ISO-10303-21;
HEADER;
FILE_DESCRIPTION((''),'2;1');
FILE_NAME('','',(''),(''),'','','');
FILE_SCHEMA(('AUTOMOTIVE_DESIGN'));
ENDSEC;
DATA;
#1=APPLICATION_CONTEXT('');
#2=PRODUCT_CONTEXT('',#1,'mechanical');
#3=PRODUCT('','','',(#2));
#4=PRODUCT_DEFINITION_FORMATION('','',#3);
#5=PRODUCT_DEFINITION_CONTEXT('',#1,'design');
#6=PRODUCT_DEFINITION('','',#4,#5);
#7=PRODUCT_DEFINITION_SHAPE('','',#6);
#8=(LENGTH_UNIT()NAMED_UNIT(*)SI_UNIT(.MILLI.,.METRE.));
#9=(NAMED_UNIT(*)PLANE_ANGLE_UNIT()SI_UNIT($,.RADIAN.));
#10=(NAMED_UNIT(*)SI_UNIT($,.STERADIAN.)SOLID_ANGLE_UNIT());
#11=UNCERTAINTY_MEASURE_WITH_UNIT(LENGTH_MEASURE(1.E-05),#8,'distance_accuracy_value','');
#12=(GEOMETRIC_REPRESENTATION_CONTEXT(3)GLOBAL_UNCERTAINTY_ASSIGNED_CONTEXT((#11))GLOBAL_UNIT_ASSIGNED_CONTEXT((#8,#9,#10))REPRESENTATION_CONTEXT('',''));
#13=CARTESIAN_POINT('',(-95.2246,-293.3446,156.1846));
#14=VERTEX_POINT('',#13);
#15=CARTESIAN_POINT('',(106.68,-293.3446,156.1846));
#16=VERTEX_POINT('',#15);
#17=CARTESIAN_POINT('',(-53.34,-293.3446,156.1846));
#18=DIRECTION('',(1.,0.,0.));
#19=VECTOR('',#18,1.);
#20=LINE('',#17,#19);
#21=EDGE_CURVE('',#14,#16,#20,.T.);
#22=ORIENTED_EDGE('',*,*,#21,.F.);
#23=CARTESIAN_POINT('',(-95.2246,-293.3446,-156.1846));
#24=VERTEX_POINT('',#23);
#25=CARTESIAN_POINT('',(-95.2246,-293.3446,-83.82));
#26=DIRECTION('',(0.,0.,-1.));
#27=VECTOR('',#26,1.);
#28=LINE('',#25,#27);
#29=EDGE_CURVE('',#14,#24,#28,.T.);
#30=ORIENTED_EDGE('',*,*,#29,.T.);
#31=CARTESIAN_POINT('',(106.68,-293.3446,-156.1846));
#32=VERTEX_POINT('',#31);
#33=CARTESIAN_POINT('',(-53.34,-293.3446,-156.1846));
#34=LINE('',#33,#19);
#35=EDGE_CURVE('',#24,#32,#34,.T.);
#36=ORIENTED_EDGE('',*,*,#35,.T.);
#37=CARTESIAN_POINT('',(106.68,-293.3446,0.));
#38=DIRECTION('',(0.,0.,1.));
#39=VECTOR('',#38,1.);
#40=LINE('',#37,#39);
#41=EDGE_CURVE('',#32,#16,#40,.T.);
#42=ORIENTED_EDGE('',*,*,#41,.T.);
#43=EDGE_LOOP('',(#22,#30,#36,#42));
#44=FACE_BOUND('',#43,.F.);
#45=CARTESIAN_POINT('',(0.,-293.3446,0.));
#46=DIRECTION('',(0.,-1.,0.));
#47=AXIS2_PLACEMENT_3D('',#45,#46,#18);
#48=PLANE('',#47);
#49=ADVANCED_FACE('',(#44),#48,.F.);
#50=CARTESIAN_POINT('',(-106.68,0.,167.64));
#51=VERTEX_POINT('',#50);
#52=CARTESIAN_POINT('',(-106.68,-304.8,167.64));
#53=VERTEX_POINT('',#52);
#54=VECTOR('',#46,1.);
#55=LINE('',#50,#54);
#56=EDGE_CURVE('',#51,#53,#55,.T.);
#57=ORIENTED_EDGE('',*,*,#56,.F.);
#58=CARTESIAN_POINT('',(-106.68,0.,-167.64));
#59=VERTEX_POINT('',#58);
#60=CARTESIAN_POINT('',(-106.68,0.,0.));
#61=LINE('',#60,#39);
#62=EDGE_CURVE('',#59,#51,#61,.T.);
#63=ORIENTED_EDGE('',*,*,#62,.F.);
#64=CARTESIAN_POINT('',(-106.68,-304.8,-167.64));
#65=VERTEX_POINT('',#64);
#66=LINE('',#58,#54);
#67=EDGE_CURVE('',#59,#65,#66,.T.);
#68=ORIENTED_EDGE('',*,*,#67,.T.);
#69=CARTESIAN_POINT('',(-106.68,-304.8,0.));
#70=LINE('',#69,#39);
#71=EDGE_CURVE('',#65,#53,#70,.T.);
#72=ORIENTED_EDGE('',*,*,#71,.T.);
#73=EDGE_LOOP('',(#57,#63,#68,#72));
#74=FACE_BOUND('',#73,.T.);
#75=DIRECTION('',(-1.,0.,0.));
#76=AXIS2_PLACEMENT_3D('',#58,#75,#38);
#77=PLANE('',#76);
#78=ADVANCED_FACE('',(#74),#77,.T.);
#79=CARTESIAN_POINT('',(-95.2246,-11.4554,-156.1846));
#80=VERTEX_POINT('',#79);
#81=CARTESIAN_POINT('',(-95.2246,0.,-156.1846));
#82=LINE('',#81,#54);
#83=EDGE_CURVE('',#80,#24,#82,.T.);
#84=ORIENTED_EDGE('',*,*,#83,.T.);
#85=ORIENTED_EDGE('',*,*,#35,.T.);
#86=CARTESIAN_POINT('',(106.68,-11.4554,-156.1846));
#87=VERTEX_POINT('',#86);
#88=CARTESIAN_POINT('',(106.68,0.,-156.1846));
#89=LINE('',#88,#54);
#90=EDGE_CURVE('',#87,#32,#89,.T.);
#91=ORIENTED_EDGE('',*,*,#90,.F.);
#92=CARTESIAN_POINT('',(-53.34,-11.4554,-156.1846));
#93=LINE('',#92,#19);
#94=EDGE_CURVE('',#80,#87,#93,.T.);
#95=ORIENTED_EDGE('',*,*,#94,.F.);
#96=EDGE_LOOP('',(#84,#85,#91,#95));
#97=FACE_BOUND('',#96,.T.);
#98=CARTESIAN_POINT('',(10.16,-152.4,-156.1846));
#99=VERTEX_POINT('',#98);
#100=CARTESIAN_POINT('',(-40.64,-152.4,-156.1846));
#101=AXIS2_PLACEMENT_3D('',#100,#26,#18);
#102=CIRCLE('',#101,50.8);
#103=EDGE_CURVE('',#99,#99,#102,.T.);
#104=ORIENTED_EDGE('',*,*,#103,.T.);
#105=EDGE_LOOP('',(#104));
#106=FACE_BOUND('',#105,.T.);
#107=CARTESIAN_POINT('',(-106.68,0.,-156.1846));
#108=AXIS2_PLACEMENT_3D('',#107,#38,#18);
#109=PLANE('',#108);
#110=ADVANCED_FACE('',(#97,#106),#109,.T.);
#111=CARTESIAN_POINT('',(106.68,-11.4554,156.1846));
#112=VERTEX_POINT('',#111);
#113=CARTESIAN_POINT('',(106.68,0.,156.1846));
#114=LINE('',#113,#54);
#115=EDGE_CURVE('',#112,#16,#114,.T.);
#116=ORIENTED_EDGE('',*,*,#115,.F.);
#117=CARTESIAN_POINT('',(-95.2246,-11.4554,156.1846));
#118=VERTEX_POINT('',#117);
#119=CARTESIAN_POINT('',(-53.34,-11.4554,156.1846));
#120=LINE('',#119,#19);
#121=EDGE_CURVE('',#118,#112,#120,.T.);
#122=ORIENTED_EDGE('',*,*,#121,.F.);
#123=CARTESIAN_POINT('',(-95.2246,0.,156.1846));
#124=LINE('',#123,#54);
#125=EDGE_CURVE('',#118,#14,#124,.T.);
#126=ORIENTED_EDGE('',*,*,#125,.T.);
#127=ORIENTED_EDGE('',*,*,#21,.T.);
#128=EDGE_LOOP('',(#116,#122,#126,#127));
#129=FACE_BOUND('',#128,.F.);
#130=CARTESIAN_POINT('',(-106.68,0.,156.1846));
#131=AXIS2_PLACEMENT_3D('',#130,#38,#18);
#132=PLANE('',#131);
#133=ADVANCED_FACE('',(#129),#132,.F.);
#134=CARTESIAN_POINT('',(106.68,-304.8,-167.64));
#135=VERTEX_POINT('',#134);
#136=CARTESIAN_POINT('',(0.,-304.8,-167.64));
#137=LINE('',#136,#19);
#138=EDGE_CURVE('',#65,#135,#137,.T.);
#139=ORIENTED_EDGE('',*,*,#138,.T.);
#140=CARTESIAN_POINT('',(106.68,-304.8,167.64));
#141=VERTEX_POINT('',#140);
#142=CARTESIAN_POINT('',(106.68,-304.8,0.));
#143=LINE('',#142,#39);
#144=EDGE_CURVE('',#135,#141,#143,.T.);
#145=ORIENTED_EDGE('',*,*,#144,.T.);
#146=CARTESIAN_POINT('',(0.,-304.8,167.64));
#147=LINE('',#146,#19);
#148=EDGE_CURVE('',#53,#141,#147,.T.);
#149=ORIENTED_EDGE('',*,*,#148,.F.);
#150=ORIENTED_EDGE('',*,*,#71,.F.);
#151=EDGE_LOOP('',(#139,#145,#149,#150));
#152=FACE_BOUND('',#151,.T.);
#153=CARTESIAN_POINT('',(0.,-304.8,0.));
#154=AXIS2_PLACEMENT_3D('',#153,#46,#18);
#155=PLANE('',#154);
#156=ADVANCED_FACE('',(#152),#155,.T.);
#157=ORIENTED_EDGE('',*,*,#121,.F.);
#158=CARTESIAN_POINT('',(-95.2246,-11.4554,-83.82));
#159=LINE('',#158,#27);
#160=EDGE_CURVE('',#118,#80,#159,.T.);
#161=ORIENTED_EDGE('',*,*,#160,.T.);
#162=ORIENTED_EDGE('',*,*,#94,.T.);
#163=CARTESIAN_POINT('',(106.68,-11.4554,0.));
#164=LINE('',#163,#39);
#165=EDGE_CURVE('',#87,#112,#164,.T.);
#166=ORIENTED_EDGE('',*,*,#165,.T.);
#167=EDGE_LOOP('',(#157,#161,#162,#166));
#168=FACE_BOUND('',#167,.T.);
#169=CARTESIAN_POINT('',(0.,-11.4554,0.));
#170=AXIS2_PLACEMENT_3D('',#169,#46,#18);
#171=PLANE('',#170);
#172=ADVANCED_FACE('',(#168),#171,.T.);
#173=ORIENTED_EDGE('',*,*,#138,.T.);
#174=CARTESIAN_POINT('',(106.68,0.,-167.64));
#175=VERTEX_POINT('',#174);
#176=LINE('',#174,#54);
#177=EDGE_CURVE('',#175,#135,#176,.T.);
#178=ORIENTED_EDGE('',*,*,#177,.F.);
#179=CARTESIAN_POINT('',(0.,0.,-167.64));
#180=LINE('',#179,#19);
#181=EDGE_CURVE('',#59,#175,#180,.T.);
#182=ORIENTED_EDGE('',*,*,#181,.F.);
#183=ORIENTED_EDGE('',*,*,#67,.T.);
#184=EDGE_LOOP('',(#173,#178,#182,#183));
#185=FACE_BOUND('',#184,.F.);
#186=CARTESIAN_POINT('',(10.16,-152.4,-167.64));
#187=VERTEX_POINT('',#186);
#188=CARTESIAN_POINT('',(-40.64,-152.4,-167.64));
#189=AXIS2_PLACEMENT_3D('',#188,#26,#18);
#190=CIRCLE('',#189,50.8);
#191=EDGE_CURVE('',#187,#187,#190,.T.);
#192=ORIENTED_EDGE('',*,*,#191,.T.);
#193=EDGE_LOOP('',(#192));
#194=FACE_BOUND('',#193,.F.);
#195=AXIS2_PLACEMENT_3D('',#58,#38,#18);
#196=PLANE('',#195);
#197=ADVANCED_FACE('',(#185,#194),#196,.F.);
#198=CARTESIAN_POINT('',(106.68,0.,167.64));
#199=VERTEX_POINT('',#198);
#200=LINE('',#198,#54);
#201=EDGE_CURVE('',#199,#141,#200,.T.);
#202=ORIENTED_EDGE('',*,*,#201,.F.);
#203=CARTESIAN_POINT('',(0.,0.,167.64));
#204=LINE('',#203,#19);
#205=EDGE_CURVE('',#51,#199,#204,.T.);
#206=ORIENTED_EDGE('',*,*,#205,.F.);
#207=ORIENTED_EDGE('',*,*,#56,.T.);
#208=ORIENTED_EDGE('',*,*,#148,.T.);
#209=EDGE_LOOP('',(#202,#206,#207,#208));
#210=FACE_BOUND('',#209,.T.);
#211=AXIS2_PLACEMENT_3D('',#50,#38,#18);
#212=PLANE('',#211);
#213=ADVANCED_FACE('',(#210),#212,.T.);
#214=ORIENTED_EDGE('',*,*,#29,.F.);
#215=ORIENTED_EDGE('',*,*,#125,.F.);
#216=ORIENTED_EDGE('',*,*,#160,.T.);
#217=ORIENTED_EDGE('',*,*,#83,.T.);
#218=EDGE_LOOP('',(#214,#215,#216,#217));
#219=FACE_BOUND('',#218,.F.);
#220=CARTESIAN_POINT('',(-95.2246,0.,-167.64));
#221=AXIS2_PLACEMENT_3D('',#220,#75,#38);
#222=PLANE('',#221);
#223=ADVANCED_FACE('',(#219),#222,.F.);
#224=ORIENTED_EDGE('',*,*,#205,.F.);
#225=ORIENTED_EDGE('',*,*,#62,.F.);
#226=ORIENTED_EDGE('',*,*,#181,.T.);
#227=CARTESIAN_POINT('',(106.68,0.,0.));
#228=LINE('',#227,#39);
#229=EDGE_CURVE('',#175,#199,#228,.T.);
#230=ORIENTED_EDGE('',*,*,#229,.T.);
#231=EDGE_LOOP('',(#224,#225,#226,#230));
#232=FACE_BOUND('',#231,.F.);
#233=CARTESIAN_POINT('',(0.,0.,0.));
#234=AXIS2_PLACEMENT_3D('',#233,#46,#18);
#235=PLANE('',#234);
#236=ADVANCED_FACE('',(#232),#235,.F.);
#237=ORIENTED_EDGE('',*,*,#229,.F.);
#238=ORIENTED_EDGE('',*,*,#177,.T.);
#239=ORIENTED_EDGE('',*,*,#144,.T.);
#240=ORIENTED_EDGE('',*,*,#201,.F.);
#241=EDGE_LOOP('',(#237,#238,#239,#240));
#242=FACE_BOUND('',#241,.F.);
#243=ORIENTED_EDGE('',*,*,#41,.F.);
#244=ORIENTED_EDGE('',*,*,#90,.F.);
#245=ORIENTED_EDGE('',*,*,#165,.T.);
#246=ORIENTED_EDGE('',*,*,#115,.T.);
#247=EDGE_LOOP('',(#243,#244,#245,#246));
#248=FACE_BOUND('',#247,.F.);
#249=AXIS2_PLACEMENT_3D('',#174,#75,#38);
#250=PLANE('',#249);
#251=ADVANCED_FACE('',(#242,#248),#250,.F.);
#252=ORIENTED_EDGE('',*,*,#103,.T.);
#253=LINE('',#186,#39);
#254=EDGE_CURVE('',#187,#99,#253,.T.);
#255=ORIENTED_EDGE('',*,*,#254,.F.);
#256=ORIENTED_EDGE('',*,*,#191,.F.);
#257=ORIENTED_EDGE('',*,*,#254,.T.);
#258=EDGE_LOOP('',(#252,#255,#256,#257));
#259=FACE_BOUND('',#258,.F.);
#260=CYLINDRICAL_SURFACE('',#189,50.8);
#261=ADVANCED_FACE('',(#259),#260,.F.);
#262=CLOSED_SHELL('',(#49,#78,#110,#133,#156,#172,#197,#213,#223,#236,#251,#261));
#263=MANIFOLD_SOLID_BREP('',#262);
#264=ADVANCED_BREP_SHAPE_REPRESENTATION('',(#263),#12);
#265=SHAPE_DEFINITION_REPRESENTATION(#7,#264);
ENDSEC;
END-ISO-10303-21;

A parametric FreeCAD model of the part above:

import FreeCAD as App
import Part
import Sketcher

V = App.Vector
Q = App.Units.Quantity


def faces_at(feature, points):
    """Names of the faces that lie closest to the given points."""
    faces = feature.Shape.Faces
    near = lambda p: min(range(len(faces)), key=lambda i: faces[i].distToShape(Part.Vertex(*p))[0])
    return sorted({f"Face{near(p) + 1}" for p in points})

doc = App.newDocument("Part")
params = doc.addObject("Spreadsheet::Sheet", "Params")
for row, (alias, value) in enumerate([
    ("sketch1_width", "8.4 in"),
    ("sketch1_height", "13.2 in"),
    ("pad1_length", "12 in"),
    ("thickness_wall", "0.451 in"),
    ("sketch2_diameter", "4 in"),
    ("pocket1_length", "0.451 in"),
], start=1):
    params.set(f"A{row}", alias)
    params.set(f"B{row}", "=" + value)
    params.setAlias(f"B{row}", alias)

body = doc.addObject("PartDesign::Body", "Body")

# Sketch on XZ plane
sketch1 = body.newObject("Sketcher::SketchObject", "Sketch")
sketch1.AttachmentSupport = (doc.getObject("XZ_Plane"), [""])
sketch1.MapMode = "FlatFace"
sketch1.addGeometry(Part.LineSegment(V(-107, 168, 0), V(-107, -168, 0)), False)
sketch1.addGeometry(Part.LineSegment(V(-107, -168, 0), V(107, -168, 0)), False)
sketch1.addGeometry(Part.LineSegment(V(107, -168, 0), V(107, 168, 0)), False)
sketch1.addGeometry(Part.LineSegment(V(107, 168, 0), V(-107, 168, 0)), False)
sketch1.addConstraint(Sketcher.Constraint("Coincident", 0, 2, 1, 1))
sketch1.addConstraint(Sketcher.Constraint("Coincident", 1, 2, 2, 1))
sketch1.addConstraint(Sketcher.Constraint("Coincident", 2, 2, 3, 1))
sketch1.addConstraint(Sketcher.Constraint("Coincident", 3, 2, 0, 1))
sketch1.addConstraint(Sketcher.Constraint("Vertical", 0))
sketch1.addConstraint(Sketcher.Constraint("Horizontal", 1))
sketch1.addConstraint(Sketcher.Constraint("Vertical", 2))
sketch1.addConstraint(Sketcher.Constraint("Horizontal", 3))
sketch1.addConstraint(Sketcher.Constraint("Symmetric", 0, 2, 2, 2, -1, 1))
sketch1.addConstraint(Sketcher.Constraint("DistanceX", 1, 1, 1, 2, Q("8.4 in")))
sketch1.addConstraint(Sketcher.Constraint("DistanceY", 0, 2, 0, 1, Q("13.2 in")))
sketch1.setExpression("Constraints[9]", "Params.sketch1_width")
sketch1.setExpression("Constraints[10]", "Params.sketch1_height")
pad1 = body.newObject("PartDesign::Pad", "Pad")
pad1.Profile = sketch1
pad1.setExpression("Length", "Params.pad1_length")
doc.recompute()

thickness = body.newObject("PartDesign::Thickness", "Thickness")
thickness.Base = (pad1, faces_at(pad1, [(106.68, -152.4, 0)]))
thickness.setExpression("Value", "Params.thickness_wall")
thickness.Reversed = True
thickness.Join = "Arc"

# Sketch on XY plane
sketch2 = body.newObject("Sketcher::SketchObject", "Sketch001")
sketch2.AttachmentSupport = (doc.getObject("XY_Plane"), [""])
sketch2.MapMode = "FlatFace"
sketch2.AttachmentOffset = App.Placement(V(0, 0, -6.6 * 25.4), App.Rotation())
sketch2.addGeometry(Part.Circle(V(-41, -152, 0), V(0, 0, 1), 51), False)
sketch2.addConstraint(Sketcher.Constraint("Diameter", 0, Q("4 in")))
sketch2.addConstraint(Sketcher.Constraint("DistanceY", 0, 3, -1, 1, Q("6 in")))
sketch2.addConstraint(Sketcher.Constraint("DistanceX", 0, 3, -1, 1, Q("1.6 in")))
sketch2.setExpression("Constraints[0]", "Params.sketch2_diameter")
pocket1 = body.newObject("PartDesign::Pocket", "Pocket")
pocket1.Profile = sketch2
pocket1.setExpression("Length", "Params.pocket1_length")
pocket1.Reversed = True

doc.recompute()
